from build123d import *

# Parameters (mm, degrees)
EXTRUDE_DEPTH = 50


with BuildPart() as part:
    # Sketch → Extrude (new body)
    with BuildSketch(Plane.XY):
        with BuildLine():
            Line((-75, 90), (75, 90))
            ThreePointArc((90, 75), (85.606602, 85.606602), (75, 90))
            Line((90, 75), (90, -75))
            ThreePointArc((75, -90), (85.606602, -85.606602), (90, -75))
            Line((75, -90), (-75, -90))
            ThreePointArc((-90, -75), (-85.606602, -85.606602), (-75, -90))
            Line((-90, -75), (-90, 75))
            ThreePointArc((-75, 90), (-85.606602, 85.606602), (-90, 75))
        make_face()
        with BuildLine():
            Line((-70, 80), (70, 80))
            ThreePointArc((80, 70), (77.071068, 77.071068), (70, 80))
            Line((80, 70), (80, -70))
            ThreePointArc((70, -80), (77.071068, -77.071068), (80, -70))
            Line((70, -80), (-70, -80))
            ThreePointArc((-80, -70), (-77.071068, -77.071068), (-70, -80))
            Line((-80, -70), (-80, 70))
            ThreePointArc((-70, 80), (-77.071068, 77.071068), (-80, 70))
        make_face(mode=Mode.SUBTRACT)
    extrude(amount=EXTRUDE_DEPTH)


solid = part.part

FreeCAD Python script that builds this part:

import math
import FreeCAD as App
import Part
import Sketcher

doc = App.newDocument("Part")
body = doc.addObject("PartDesign::Body", "Body")

# Sketch on XY plane
sketch1 = body.newObject("Sketcher::SketchObject", "Sketch")
sketch1.AttachmentSupport = (doc.getObject("XY_Plane"), [""])
sketch1.MapMode = "FlatFace"
sketch1.addGeometry(Part.LineSegment(App.Vector(75, 90, 0), App.Vector(-75, 90, 0)), False)
sketch1.addGeometry(Part.ArcOfCircle(Part.Circle(App.Vector(-75.000001, 75.000001, 0), App.Vector(0, 0, 1), 14.999999), math.radians(89.999996), math.radians(180.000004)), False)
sketch1.addGeometry(Part.LineSegment(App.Vector(-90, 75, 0), App.Vector(-90, -75, 0)), False)
sketch1.addGeometry(Part.ArcOfCircle(Part.Circle(App.Vector(-75.000001, -75.000001, 0), App.Vector(0, 0, 1), 14.999999), math.radians(179.999996), math.radians(270.000004)), False)
sketch1.addGeometry(Part.LineSegment(App.Vector(-75, -90, 0), App.Vector(75, -90, 0)), False)
sketch1.addGeometry(Part.ArcOfCircle(Part.Circle(App.Vector(75.000001, -75.000001, 0), App.Vector(0, 0, 1), 14.999999), math.radians(-90.000004), math.radians(0.000004)), False)
sketch1.addGeometry(Part.LineSegment(App.Vector(90, -75, 0), App.Vector(90, 75, 0)), False)
sketch1.addGeometry(Part.ArcOfCircle(Part.Circle(App.Vector(75.000001, 75.000001, 0), App.Vector(0, 0, 1), 14.999999), math.radians(-0.000004), math.radians(90.000004)), False)
sketch1.addGeometry(Part.LineSegment(App.Vector(-70, 80, 0), App.Vector(70, 80, 0)), False)
sketch1.addGeometry(Part.ArcOfCircle(Part.Circle(App.Vector(70.000001, 70.000001, 0), App.Vector(0, 0, 1), 9.999999), math.radians(-0.000004), math.radians(90.000004)), False)
sketch1.addGeometry(Part.LineSegment(App.Vector(80, 70, 0), App.Vector(80, -70, 0)), False)
sketch1.addGeometry(Part.ArcOfCircle(Part.Circle(App.Vector(70.000001, -70.000001, 0), App.Vector(0, 0, 1), 9.999999), math.radians(-90.000004), math.radians(0.000004)), False)
sketch1.addGeometry(Part.LineSegment(App.Vector(70, -80, 0), App.Vector(-70, -80, 0)), False)
sketch1.addGeometry(Part.ArcOfCircle(Part.Circle(App.Vector(-70.000001, -70.000001, 0), App.Vector(0, 0, 1), 9.999999), math.radians(179.999996), math.radians(270.000004)), False)
sketch1.addGeometry(Part.LineSegment(App.Vector(-80, -70, 0), App.Vector(-80, 70, 0)), False)
sketch1.addGeometry(Part.ArcOfCircle(Part.Circle(App.Vector(-70.000001, 70.000001, 0), App.Vector(0, 0, 1), 9.999999), math.radians(89.999996), math.radians(180.000004)), False)
sketch1.addConstraint(Sketcher.Constraint("Tangent", 0, 2, 1, 1))
sketch1.addConstraint(Sketcher.Constraint("Tangent", 1, 2, 2, 1))
sketch1.addConstraint(Sketcher.Constraint("Tangent", 2, 2, 3, 1))
sketch1.addConstraint(Sketcher.Constraint("Tangent", 3, 2, 4, 1))
sketch1.addConstraint(Sketcher.Constraint("Tangent", 4, 2, 5, 1))
sketch1.addConstraint(Sketcher.Constraint("Tangent", 5, 2, 6, 1))
sketch1.addConstraint(Sketcher.Constraint("Tangent", 6, 2, 7, 1))
sketch1.addConstraint(Sketcher.Constraint("Tangent", 7, 2, 0, 1))
sketch1.addConstraint(Sketcher.Constraint("Tangent", 8, 2, 9, 2))
sketch1.addConstraint(Sketcher.Constraint("Tangent", 9, 1, 10, 1))
sketch1.addConstraint(Sketcher.Constraint("Tangent", 10, 2, 11, 2))
sketch1.addConstraint(Sketcher.Constraint("Tangent", 11, 1, 12, 1))
sketch1.addConstraint(Sketcher.Constraint("Tangent", 12, 2, 13, 2))
sketch1.addConstraint(Sketcher.Constraint("Tangent", 13, 1, 14, 1))
sketch1.addConstraint(Sketcher.Constraint("Tangent", 14, 2, 15, 2))
sketch1.addConstraint(Sketcher.Constraint("Tangent", 15, 1, 8, 1))
sketch1.addConstraint(Sketcher.Constraint("Horizontal", 0))
sketch1.addConstraint(Sketcher.Constraint("Vertical", 2))
sketch1.addConstraint(Sketcher.Constraint("Horizontal", 4))
sketch1.addConstraint(Sketcher.Constraint("Vertical", 6))
sketch1.addConstraint(Sketcher.Constraint("Horizontal", 8))
sketch1.addConstraint(Sketcher.Constraint("Vertical", 10))
sketch1.addConstraint(Sketcher.Constraint("Horizontal", 12))
sketch1.addConstraint(Sketcher.Constraint("Vertical", 14))
sketch1.addConstraint(Sketcher.Constraint("Equal", 1, 3))
sketch1.addConstraint(Sketcher.Constraint("Equal", 3, 5))
sketch1.addConstraint(Sketcher.Constraint("Equal", 5, 7))
sketch1.addConstraint(Sketcher.Constraint("Equal", 9, 11))
sketch1.addConstraint(Sketcher.Constraint("Equal", 11, 13))
sketch1.addConstraint(Sketcher.Constraint("Equal", 13, 15))
sketch1.addConstraint(Sketcher.Constraint("Symmetric", 1, 3, 5, 3, -1, 1))
sketch1.addConstraint(Sketcher.Constraint("Symmetric", 9, 3, 13, 3, -1, 1))
sketch1.addConstraint(Sketcher.Constraint("Equal", 4, 2))
sketch1.addConstraint(Sketcher.Constraint("Equal", 12, 10))
sketch1.addConstraint(Sketcher.Constraint("Radius", 1, 14.999999))
sketch1.addConstraint(Sketcher.Constraint("Radius", 9, 9.999999))
sketch1.addConstraint(Sketcher.Constraint("DistanceX", 0, 2, 0, 1, 150.0))
sketch1.addConstraint(Sketcher.Constraint("DistanceX", 8, 1, 8, 2, 140.0))
pad1 = body.newObject("PartDesign::Pad", "Pad")
pad1.Profile = sketch1
pad1.Length = 50

doc.recompute()
